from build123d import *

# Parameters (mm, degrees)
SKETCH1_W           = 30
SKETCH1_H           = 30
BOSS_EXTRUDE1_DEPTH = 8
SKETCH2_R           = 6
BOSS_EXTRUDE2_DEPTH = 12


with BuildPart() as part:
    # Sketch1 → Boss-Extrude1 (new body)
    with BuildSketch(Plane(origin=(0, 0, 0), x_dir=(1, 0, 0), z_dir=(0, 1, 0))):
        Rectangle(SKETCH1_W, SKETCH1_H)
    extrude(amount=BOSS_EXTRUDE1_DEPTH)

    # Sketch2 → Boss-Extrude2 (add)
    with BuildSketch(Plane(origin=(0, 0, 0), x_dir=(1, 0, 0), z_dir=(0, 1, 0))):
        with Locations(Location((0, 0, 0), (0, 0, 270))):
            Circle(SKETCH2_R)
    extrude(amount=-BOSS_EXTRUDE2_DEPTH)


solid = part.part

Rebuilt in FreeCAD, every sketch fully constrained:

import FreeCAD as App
import Part
import Sketcher
from FreeCAD import Vector
Q = App.Units.Quantity


def add_polygon(sketch, points):
    """Adds a closed chain of lines whose ends are joined by coincident constraints."""
    first, n = sketch.GeometryCount, len(points)
    for a, b in zip(points, points[1:] + points[:1]):
        sketch.addGeometry(Part.LineSegment(App.Vector(*a, 0), App.Vector(*b, 0)), False)
    for i in range(n):
        sketch.addConstraint(Sketcher.Constraint("Coincident", first + i, 2, first + (i + 1) % n, 1))

doc = App.newDocument("Part")
body = doc.addObject("PartDesign::Body", "Body")

# Sketch on XZ plane
sketch1 = body.newObject("Sketcher::SketchObject", "Sketch")
sketch1.AttachmentSupport = (doc.getObject("XZ_Plane"), [""])
sketch1.MapMode = "FlatFace"
add_polygon(sketch1, [(-15, -15), (-15, 15), (15, 15), (15, -15)])  # lines 0-3
sketch1.addConstraint(Sketcher.Constraint("Vertical", 0))
sketch1.addConstraint(Sketcher.Constraint("Horizontal", 1))
sketch1.addConstraint(Sketcher.Constraint("Vertical", 2))
sketch1.addConstraint(Sketcher.Constraint("Horizontal", 3))
sketch1.addConstraint(Sketcher.Constraint("Symmetric", 0, 2, 2, 2, -1, 1))
sketch1.addConstraint(Sketcher.Constraint("Equal", 3, 0))
sketch1.addConstraint(Sketcher.Constraint("DistanceX", 1, 1, 1, 2, Q("30 mm")))
pad1 = body.newObject("PartDesign::Pad", "Pad")
pad1.Profile = sketch1
pad1.Length = 8
pad1.Reversed = True

# Sketch on XZ plane
sketch2 = body.newObject("Sketcher::SketchObject", "Sketch001")
sketch2.AttachmentSupport = (doc.getObject("XZ_Plane"), [""])
sketch2.MapMode = "FlatFace"
sketch2.addGeometry(Part.Circle(Vector(0, 0, 0), Vector(0, 0, 1), 6), False)
sketch2.addConstraint(Sketcher.Constraint("Coincident", 0, 3, -1, 1))
sketch2.addConstraint(Sketcher.Constraint("Diameter", 0, Q("12 mm")))
pad2 = body.newObject("PartDesign::Pad", "Pad001")
pad2.Profile = sketch2
pad2.Length = 12

doc.recompute()
